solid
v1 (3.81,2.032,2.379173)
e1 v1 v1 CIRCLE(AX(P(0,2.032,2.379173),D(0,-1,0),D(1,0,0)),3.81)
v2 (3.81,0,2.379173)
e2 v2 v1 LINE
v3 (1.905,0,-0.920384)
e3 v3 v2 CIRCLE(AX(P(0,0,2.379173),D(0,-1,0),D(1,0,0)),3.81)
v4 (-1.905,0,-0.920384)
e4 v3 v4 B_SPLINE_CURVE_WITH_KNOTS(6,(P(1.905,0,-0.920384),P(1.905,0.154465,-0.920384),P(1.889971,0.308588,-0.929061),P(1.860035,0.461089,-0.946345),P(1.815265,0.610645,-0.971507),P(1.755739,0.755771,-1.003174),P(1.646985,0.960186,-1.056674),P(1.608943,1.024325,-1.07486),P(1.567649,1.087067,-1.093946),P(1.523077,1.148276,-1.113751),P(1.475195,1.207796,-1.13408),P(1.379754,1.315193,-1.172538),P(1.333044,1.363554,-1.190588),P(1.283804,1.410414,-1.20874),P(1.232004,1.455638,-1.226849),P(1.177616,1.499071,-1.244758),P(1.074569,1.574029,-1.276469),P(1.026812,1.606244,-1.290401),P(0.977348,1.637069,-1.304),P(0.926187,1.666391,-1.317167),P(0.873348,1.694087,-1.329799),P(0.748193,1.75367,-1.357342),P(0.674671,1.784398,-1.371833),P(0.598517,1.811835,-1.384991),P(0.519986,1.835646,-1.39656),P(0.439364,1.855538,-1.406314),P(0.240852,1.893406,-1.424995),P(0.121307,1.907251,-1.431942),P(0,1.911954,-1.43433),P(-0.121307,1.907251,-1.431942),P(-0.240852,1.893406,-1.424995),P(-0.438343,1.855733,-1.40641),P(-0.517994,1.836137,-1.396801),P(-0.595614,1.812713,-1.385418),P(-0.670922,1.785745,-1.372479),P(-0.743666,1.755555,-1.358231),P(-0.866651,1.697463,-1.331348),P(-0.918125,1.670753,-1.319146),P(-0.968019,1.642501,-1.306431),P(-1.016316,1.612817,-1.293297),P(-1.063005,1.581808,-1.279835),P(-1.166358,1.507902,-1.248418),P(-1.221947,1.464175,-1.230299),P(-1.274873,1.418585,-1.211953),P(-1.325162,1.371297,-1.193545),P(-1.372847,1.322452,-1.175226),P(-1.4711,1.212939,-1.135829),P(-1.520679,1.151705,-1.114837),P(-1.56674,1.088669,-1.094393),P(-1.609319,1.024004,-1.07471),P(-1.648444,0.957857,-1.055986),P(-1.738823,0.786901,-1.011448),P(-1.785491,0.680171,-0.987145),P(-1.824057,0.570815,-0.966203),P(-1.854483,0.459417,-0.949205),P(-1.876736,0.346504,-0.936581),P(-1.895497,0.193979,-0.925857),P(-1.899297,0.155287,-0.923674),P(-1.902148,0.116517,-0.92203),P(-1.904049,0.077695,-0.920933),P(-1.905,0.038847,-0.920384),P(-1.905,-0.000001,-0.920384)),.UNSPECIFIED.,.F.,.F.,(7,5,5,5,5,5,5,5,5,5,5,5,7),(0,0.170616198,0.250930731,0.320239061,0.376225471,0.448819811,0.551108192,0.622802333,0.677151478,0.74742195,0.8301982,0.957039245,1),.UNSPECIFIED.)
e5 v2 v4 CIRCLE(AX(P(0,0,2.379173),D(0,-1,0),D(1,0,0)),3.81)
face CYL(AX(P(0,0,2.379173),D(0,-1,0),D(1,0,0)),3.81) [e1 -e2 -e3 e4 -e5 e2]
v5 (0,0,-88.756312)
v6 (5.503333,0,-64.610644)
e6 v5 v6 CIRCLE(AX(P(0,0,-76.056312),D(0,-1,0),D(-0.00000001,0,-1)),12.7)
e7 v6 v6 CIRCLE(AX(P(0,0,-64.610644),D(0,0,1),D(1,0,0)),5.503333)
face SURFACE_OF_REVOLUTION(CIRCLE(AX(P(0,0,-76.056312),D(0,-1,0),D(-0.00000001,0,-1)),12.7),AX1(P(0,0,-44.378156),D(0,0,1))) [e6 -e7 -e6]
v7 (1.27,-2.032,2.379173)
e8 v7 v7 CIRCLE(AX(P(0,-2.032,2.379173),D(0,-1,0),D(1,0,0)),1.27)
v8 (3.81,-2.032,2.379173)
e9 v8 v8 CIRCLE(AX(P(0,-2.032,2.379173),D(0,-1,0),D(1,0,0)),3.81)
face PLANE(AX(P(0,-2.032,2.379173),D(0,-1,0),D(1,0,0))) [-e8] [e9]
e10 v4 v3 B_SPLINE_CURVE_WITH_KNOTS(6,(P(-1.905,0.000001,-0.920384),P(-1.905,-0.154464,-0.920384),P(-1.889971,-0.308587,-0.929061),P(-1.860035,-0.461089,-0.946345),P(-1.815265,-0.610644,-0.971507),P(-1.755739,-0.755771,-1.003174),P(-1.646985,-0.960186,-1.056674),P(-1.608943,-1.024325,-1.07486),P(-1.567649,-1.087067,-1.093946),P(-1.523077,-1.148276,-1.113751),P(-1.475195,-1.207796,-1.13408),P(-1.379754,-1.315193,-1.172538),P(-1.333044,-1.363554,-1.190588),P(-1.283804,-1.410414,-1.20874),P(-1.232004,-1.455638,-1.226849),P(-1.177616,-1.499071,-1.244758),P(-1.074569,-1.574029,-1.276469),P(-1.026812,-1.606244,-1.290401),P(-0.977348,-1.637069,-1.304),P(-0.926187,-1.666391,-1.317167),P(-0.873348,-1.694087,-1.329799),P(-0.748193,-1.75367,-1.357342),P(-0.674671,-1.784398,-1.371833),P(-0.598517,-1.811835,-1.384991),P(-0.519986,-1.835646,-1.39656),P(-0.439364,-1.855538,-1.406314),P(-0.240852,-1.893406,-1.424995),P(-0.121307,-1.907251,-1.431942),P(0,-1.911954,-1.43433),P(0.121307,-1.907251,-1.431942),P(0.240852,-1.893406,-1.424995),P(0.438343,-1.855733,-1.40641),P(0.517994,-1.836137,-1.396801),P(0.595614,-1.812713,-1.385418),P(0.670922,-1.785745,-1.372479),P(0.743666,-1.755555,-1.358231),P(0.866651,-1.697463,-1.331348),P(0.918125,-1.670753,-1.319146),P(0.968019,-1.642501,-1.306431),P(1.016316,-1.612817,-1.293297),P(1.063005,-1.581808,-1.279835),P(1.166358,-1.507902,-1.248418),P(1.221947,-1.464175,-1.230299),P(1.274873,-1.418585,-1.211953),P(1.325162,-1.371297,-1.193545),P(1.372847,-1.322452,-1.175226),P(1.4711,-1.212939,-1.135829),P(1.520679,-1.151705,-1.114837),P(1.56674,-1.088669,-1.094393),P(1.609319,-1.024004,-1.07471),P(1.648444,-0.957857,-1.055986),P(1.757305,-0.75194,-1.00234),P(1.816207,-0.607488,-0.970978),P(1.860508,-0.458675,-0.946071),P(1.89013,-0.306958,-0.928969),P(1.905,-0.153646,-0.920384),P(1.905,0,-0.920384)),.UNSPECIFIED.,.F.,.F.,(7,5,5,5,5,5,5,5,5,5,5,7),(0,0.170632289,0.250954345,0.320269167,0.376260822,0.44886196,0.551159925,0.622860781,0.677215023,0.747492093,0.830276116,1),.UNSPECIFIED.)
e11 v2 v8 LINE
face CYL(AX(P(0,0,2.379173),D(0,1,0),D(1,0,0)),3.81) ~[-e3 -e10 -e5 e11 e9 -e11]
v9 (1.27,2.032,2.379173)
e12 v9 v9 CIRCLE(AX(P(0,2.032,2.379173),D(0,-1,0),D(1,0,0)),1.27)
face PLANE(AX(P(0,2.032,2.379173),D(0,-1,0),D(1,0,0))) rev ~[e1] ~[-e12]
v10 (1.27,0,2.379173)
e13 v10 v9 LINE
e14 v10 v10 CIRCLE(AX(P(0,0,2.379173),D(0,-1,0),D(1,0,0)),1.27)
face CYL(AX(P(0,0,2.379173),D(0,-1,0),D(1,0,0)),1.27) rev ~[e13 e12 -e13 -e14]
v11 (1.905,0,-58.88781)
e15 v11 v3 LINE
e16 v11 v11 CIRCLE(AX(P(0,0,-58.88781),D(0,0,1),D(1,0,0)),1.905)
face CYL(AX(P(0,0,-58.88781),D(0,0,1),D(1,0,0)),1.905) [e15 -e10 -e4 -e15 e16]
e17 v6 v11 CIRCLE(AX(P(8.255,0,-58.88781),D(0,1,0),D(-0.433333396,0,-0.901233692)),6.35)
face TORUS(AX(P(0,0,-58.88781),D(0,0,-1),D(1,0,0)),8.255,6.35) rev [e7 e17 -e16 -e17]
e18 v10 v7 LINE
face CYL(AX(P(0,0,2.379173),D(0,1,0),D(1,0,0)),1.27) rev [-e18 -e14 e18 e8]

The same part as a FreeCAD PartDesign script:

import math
import FreeCAD as App
import Part
import Sketcher

V = App.Vector
Q = App.Units.Quantity

doc = App.newDocument("Part")
body = doc.addObject("PartDesign::Body", "Body")

sketch1 = body.newObject("Sketcher::SketchObject", "Sketch")
sketch1.AttachmentSupport = (doc.getObject("XZ_Plane"), [""])
sketch1.MapMode = "FlatFace"
sketch1.addGeometry([
    Part.LineSegment(V(0, 0, 0), V(0, -88.8, 0)),
    Part.ArcOfCircle(Part.Circle(V(0, -76.1, 0), V(0, 0, 1), 12.7), math.radians(-90), math.radians(64)),
    Part.ArcOfCircle(Part.Circle(V(8.3, -58.9, 0), V(0, 0, 1), 6.4), math.radians(-180), math.radians(-116)),
    Part.LineSegment(V(1.9, -58.9, 0), V(1.9, 0, 0)),
    Part.LineSegment(V(1.9, 0, 0), V(0, 0, 0)),
], False)
sketch1.addConstraint([
    Sketcher.Constraint("Coincident", 0, 2, 1, 1),
    Sketcher.Constraint("Tangent", 1, 2, 2, 2),
    Sketcher.Constraint("Tangent", 2, 1, 3, 1),
    Sketcher.Constraint("Coincident", 3, 2, 4, 1),
    Sketcher.Constraint("Coincident", 4, 2, 0, 1),
    Sketcher.Constraint("Vertical", 0),
    Sketcher.Constraint("Vertical", 3),
    Sketcher.Constraint("Horizontal", 4),
    Sketcher.Constraint("Coincident", 4, 2, -1, 1),
    Sketcher.Constraint("PointOnObject", 1, 3, -2),
    Sketcher.Constraint("Radius", 1, Q("0.5 in")),
    Sketcher.Constraint("Radius", 2, Q("0.25 in")),
    Sketcher.Constraint("DistanceX", 4, 2, 4, 1, Q("0.075 in")),
    Sketcher.Constraint("DistanceY", 0, 2, 0, 1, 88.756312),
])
revolution = body.newObject("PartDesign::Revolution", "Revolution")
revolution.Profile = sketch1
revolution.ReferenceAxis = (sketch1, ["V_Axis"])
revolution.Angle = 360

sketch2 = body.newObject("Sketcher::SketchObject", "Sketch001")
sketch2.AttachmentSupport = (doc.getObject("XZ_Plane"), [""])
sketch2.MapMode = "FlatFace"
sketch2.addGeometry([
    Part.Circle(V(0, 2.4, 0), V(0, 0, 1), 3.8),
    Part.Circle(V(0, 2.4, 0), V(0, 0, 1), 1.3),
], False)
sketch2.addConstraint([
    Sketcher.Constraint("Coincident", 1, 3, 0, 3),
    Sketcher.Constraint("PointOnObject", 0, 3, -2),
    Sketcher.Constraint("Diameter", 0, Q("0.3 in")),
    Sketcher.Constraint("Diameter", 1, Q("0.1 in")),
    Sketcher.Constraint("DistanceY", -1, 1, 0, 3, 2.379173),
])
pad1 = body.newObject("PartDesign::Pad", "Pad")
pad1.Profile = sketch2
pad1.Type = "TwoLengths"
pad1.Length = Q("0.08 in")
pad1.Length2 = Q("0.08 in")

doc.recompute()
